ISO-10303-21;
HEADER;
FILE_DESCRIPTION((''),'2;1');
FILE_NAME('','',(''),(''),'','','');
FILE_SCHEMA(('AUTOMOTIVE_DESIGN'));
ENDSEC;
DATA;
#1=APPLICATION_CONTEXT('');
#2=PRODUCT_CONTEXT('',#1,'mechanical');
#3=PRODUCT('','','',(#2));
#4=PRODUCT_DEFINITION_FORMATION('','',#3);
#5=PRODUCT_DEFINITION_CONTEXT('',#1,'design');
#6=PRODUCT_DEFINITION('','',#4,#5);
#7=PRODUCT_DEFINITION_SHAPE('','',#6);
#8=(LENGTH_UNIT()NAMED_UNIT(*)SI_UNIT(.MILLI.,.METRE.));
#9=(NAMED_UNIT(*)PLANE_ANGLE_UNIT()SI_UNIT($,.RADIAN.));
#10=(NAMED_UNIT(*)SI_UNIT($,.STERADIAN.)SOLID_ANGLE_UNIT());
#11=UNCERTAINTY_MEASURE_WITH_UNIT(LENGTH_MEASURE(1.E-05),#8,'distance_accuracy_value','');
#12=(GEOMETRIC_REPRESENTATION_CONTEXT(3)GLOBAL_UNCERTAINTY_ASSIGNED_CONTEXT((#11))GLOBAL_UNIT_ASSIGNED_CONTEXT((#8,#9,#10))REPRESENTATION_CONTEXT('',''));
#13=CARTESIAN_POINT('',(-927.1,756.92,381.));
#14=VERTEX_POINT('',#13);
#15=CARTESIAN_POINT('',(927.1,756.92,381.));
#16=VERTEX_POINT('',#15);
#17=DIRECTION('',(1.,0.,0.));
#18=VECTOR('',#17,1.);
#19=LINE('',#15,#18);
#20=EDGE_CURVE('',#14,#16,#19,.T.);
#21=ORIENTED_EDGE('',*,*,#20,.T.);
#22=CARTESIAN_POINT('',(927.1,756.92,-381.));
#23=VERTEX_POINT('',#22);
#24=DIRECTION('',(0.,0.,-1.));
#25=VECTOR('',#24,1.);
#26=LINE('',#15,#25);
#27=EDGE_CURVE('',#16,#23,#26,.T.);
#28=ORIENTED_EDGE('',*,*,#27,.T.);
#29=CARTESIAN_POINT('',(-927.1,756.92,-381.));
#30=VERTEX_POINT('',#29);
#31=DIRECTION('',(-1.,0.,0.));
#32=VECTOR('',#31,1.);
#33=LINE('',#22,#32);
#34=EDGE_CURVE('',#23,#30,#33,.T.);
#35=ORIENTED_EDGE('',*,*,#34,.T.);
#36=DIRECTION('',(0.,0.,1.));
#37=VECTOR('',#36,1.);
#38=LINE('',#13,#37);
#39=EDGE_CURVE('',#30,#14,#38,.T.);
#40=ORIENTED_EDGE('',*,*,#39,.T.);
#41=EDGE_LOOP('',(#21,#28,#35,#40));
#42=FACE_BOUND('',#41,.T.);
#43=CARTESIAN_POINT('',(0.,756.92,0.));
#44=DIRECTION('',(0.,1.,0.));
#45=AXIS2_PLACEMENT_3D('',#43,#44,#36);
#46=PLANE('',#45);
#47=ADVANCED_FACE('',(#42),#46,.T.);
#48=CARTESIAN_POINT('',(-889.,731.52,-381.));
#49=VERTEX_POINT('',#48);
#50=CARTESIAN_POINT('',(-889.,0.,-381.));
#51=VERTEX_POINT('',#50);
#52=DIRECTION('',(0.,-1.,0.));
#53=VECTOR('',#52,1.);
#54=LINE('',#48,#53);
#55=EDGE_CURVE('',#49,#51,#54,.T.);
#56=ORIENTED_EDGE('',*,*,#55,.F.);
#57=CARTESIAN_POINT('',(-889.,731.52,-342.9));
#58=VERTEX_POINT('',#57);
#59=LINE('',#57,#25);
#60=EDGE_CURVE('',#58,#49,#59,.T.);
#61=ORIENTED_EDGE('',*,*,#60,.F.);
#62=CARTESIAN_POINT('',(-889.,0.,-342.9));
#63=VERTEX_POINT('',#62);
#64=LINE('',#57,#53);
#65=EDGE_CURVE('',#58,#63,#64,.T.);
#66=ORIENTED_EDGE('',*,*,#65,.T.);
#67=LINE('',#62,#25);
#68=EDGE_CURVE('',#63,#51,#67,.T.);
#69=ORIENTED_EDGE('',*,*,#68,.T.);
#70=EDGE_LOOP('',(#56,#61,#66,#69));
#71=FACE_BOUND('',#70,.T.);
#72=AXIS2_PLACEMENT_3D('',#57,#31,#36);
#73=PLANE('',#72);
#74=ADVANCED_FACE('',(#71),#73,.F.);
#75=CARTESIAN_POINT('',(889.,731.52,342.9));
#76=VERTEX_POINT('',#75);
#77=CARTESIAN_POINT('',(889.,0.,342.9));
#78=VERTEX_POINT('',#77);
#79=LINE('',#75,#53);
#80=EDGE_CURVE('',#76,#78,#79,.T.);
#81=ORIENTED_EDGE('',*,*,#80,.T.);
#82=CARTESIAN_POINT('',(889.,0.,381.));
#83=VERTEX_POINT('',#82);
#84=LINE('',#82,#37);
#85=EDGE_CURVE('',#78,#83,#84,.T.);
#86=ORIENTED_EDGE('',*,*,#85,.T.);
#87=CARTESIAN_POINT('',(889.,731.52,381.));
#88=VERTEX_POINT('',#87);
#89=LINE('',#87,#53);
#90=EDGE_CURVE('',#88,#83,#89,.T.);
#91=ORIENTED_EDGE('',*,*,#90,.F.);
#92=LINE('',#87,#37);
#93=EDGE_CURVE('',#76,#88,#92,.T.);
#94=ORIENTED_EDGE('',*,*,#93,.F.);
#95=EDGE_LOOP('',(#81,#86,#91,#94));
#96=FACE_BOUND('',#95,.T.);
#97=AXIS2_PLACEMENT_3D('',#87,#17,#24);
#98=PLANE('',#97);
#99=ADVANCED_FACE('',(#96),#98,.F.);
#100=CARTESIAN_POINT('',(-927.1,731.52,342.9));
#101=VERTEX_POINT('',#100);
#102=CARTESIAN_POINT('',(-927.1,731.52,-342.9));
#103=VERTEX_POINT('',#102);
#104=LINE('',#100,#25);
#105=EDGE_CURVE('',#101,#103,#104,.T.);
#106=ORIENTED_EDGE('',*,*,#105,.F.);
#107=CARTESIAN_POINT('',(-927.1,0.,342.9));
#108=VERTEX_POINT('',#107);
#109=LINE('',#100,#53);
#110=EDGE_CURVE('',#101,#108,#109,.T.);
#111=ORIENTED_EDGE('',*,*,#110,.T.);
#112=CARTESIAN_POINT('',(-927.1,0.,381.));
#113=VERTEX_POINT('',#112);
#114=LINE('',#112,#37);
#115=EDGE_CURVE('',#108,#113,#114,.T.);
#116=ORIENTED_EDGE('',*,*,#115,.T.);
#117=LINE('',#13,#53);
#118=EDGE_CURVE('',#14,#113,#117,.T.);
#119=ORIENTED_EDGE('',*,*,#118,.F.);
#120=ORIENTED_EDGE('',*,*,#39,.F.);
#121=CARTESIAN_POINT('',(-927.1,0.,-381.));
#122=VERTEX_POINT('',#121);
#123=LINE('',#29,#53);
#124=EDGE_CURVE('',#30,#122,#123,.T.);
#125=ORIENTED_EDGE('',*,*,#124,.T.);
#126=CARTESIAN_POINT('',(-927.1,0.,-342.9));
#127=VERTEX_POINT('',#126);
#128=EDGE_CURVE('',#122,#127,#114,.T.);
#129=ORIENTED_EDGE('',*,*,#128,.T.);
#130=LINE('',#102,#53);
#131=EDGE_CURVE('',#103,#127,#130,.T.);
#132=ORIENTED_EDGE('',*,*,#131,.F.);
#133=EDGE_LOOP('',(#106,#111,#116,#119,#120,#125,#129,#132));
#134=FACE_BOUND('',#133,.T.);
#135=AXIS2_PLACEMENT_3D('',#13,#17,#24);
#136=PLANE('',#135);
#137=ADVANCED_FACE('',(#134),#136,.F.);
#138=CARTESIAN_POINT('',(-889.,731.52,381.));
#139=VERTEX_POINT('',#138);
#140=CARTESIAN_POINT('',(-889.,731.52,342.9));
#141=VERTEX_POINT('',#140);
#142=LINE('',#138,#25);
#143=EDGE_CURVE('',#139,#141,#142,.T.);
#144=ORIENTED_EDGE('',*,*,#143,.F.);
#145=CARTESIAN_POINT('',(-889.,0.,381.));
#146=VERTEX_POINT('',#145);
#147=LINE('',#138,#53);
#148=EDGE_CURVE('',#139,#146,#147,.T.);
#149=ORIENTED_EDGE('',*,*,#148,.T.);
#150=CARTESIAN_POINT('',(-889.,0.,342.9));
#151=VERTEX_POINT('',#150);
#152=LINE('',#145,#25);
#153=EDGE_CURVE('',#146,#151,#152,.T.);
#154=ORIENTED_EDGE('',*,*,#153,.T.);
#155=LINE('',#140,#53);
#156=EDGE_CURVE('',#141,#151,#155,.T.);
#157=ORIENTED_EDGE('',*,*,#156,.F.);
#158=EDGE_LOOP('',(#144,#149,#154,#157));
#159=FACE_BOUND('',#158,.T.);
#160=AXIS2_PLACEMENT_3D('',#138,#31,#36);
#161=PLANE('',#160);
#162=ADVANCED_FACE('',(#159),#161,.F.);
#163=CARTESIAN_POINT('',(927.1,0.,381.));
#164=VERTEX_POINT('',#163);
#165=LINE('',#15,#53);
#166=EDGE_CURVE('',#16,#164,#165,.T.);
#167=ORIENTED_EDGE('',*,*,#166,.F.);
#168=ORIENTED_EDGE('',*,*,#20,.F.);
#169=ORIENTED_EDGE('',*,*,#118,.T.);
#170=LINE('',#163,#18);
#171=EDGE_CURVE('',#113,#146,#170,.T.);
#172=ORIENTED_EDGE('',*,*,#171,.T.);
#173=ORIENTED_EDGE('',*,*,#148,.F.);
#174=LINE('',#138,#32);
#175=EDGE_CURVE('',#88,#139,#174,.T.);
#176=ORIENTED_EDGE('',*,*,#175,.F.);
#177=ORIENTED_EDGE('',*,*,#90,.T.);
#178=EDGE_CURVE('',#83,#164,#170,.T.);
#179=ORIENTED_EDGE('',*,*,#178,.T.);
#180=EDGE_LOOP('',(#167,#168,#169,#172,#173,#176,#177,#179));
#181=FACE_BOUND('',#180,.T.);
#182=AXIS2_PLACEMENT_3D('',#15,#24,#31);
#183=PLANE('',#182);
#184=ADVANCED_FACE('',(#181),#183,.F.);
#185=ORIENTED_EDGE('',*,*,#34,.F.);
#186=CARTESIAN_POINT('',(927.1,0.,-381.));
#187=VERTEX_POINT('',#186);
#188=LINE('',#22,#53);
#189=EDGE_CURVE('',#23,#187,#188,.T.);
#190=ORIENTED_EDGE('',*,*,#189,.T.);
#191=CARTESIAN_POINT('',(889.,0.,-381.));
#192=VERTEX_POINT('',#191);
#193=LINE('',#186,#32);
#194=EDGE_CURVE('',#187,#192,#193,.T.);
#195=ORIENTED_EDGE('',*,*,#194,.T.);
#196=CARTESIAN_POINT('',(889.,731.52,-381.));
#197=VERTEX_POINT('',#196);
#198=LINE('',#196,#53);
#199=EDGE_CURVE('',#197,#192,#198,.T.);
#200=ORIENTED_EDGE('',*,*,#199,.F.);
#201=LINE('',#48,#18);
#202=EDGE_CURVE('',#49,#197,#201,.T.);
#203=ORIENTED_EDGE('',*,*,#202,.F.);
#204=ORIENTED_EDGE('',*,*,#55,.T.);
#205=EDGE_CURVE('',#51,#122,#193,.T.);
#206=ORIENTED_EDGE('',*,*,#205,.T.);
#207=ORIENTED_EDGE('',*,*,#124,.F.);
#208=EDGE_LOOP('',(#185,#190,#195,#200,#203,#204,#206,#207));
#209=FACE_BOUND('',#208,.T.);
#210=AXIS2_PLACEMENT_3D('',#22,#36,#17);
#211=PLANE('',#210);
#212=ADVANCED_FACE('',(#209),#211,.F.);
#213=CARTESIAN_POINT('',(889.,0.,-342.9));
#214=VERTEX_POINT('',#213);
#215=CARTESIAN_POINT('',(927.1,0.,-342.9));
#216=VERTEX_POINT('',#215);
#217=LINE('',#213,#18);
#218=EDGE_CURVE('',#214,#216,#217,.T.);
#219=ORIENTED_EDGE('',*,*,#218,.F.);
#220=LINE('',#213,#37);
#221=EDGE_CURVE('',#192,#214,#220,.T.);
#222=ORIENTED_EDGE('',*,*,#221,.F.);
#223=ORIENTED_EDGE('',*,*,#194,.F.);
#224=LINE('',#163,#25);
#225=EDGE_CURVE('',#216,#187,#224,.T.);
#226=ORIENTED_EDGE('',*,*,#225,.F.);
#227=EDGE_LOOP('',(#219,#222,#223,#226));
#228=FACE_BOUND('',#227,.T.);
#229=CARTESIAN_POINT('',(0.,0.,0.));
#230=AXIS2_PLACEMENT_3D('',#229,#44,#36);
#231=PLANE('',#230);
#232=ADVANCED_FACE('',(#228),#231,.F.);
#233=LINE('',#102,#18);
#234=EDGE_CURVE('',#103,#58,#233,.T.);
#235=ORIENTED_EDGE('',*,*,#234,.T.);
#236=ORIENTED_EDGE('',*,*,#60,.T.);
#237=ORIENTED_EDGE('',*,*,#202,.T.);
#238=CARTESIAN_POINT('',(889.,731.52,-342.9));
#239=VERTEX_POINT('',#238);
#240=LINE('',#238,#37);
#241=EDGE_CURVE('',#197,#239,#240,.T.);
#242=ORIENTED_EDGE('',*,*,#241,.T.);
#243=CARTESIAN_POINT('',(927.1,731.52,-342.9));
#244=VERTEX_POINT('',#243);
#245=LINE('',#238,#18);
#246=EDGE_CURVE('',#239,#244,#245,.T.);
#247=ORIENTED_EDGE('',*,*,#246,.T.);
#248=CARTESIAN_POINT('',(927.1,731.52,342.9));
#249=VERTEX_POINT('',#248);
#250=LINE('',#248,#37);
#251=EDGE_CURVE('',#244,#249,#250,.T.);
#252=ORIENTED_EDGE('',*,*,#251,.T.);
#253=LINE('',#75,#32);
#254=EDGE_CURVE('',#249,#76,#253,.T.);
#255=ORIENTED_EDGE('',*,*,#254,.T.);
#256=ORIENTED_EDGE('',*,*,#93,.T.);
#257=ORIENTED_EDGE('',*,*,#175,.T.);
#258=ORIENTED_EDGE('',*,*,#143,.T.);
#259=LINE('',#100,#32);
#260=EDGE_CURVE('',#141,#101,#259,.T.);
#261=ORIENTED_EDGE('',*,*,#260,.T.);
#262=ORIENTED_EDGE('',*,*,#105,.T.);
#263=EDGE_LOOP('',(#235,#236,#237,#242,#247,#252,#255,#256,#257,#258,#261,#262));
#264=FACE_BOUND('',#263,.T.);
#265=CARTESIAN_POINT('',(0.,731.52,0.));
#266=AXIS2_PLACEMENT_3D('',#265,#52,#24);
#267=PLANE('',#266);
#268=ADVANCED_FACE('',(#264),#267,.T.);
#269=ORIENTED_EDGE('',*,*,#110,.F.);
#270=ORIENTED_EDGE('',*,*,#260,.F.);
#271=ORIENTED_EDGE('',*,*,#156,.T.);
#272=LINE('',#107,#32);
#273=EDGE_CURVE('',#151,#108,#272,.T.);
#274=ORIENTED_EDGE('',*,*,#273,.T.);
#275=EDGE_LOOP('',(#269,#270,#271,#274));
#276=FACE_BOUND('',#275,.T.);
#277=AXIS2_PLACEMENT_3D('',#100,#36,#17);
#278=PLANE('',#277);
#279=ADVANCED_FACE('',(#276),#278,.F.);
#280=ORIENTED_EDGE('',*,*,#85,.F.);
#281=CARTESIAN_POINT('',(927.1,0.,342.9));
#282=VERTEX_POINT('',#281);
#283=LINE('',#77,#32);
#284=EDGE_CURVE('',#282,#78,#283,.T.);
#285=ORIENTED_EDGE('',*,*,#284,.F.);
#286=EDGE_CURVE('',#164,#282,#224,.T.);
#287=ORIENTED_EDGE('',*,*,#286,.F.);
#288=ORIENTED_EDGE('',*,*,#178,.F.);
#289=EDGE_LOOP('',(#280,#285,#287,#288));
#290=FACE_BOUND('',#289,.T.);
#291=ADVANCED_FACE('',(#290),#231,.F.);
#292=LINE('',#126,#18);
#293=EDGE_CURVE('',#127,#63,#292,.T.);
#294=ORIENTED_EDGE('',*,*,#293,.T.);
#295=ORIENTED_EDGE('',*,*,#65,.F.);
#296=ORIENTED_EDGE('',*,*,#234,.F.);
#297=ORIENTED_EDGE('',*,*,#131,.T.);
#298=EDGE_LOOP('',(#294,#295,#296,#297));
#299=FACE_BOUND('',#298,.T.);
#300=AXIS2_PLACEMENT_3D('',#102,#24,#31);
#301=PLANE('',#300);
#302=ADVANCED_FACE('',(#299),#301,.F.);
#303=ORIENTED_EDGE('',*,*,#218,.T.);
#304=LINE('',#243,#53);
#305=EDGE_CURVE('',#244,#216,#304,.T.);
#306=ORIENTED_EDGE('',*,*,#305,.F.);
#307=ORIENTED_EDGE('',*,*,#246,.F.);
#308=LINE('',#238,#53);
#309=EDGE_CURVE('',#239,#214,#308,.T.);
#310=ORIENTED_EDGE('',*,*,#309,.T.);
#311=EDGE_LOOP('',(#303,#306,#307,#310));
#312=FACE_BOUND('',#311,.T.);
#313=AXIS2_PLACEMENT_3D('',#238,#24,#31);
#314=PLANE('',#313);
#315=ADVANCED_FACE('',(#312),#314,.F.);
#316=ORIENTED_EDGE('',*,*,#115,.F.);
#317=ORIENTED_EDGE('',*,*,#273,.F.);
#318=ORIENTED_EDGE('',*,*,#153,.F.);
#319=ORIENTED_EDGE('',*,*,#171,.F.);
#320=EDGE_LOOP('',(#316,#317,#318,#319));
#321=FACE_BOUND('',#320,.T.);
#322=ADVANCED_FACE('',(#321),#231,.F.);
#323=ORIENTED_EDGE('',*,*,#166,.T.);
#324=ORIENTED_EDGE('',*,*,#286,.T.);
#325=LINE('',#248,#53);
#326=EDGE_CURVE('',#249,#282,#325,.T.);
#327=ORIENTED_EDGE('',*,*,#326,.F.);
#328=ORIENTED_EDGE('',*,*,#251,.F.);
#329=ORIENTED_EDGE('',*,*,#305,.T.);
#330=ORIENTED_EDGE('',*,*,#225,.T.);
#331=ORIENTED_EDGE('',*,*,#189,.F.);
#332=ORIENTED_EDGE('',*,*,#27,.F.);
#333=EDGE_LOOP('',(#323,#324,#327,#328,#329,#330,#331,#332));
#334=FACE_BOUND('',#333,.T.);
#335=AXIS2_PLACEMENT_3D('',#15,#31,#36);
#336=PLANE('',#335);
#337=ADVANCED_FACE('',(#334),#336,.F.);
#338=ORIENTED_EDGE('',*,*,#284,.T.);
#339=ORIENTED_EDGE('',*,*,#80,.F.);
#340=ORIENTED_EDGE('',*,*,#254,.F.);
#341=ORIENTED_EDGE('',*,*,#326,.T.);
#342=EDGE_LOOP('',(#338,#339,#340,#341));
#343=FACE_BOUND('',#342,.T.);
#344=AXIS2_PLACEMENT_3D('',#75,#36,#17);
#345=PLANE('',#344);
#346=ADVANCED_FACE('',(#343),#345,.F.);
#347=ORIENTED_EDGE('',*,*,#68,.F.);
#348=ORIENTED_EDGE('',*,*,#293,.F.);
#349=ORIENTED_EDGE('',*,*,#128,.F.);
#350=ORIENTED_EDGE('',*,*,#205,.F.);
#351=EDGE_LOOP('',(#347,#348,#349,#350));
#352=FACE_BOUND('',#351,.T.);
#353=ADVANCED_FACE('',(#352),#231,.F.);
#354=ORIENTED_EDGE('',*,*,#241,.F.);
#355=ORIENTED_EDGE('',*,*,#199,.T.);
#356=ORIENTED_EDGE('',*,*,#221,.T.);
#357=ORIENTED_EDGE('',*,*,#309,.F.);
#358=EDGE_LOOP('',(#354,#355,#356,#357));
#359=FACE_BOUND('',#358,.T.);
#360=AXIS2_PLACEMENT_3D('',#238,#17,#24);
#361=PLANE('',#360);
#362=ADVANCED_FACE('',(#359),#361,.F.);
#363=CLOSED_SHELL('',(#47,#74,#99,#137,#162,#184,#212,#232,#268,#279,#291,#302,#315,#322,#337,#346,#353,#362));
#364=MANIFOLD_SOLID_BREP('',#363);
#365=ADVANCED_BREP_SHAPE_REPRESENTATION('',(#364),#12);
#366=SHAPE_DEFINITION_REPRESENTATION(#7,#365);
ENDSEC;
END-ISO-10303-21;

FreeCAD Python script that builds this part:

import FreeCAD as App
import Part
import Sketcher
from FreeCAD import Vector
Q = App.Units.Quantity

doc = App.newDocument("Part")
body = doc.addObject("PartDesign::Body", "Body")

sketch1 = body.newObject("Sketcher::SketchObject", "Sketch")
sketch1.AttachmentSupport = (doc.getObject("XZ_Plane"), [""])
sketch1.MapMode = "FlatFace"
sketch1.addGeometry(Part.LineSegment(Vector(-927, -381, 0), Vector(-927, 381, 0)), False)
sketch1.addGeometry(Part.LineSegment(Vector(-927, 381, 0), Vector(927, 381, 0)), False)
sketch1.addGeometry(Part.LineSegment(Vector(927, 381, 0), Vector(927, -381, 0)), False)
sketch1.addGeometry(Part.LineSegment(Vector(927, -381, 0), Vector(-927, -381, 0)), False)
sketch1.addConstraint(Sketcher.Constraint("Coincident", 0, 2, 1, 1))
sketch1.addConstraint(Sketcher.Constraint("Coincident", 1, 2, 2, 1))
sketch1.addConstraint(Sketcher.Constraint("Coincident", 2, 2, 3, 1))
sketch1.addConstraint(Sketcher.Constraint("Coincident", 3, 2, 0, 1))
sketch1.addConstraint(Sketcher.Constraint("Vertical", 0))
sketch1.addConstraint(Sketcher.Constraint("Horizontal", 1))
sketch1.addConstraint(Sketcher.Constraint("Vertical", 2))
sketch1.addConstraint(Sketcher.Constraint("Horizontal", 3))
sketch1.addConstraint(Sketcher.Constraint("Symmetric", 0, 2, 2, 2, -1, 1))
sketch1.addConstraint(Sketcher.Constraint("DistanceX", 1, 1, 1, 2, Q("73 in")))
sketch1.addConstraint(Sketcher.Constraint("DistanceY", 0, 1, 0, 2, Q("30 in")))
pad1 = body.newObject("PartDesign::Pad", "Pad")
pad1.Profile = sketch1
pad1.Length = Q("29.8 in")
pad1.Reversed = True

sketch2 = body.newObject("Sketcher::SketchObject", "Sketch001")
sketch2.AttachmentSupport = (doc.getObject("XZ_Plane"), [""])
sketch2.MapMode = "FlatFace"
sketch2.addGeometry(Part.LineSegment(Vector(889, 381, 0), Vector(-889, 381, 0)), False)
sketch2.addGeometry(Part.LineSegment(Vector(-889, 381, 0), Vector(-889, 343, 0)), False)
sketch2.addGeometry(Part.LineSegment(Vector(-889, 343, 0), Vector(-927, 343, 0)), False)
sketch2.addGeometry(Part.LineSegment(Vector(-927, 343, 0), Vector(-927, -343, 0)), False)
sketch2.addGeometry(Part.LineSegment(Vector(-927, -343, 0), Vector(-889, -343, 0)), False)
sketch2.addGeometry(Part.LineSegment(Vector(-889, -343, 0), Vector(-889, -381, 0)), False)
sketch2.addGeometry(Part.LineSegment(Vector(-889, -381, 0), Vector(889, -381, 0)), False)
sketch2.addGeometry(Part.LineSegment(Vector(889, -381, 0), Vector(889, -343, 0)), False)
sketch2.addGeometry(Part.LineSegment(Vector(889, -343, 0), Vector(927, -343, 0)), False)
sketch2.addGeometry(Part.LineSegment(Vector(927, -343, 0), Vector(927, 343, 0)), False)
sketch2.addGeometry(Part.LineSegment(Vector(927, 343, 0), Vector(889, 343, 0)), False)
sketch2.addGeometry(Part.LineSegment(Vector(889, 343, 0), Vector(889, 381, 0)), False)
sketch2.addConstraint(Sketcher.Constraint("Coincident", 0, 2, 1, 1))
sketch2.addConstraint(Sketcher.Constraint("Coincident", 1, 2, 2, 1))
sketch2.addConstraint(Sketcher.Constraint("Coincident", 2, 2, 3, 1))
sketch2.addConstraint(Sketcher.Constraint("Coincident", 3, 2, 4, 1))
sketch2.addConstraint(Sketcher.Constraint("Coincident", 4, 2, 5, 1))
sketch2.addConstraint(Sketcher.Constraint("Coincident", 5, 2, 6, 1))
sketch2.addConstraint(Sketcher.Constraint("Coincident", 6, 2, 7, 1))
sketch2.addConstraint(Sketcher.Constraint("Coincident", 7, 2, 8, 1))
sketch2.addConstraint(Sketcher.Constraint("Coincident", 8, 2, 9, 1))
sketch2.addConstraint(Sketcher.Constraint("Coincident", 9, 2, 10, 1))
sketch2.addConstraint(Sketcher.Constraint("Coincident", 10, 2, 11, 1))
sketch2.addConstraint(Sketcher.Constraint("Coincident", 11, 2, 0, 1))
sketch2.addConstraint(Sketcher.Constraint("Horizontal", 0))
sketch2.addConstraint(Sketcher.Constraint("Vertical", 1))
sketch2.addConstraint(Sketcher.Constraint("Horizontal", 2))
sketch2.addConstraint(Sketcher.Constraint("Vertical", 3))
sketch2.addConstraint(Sketcher.Constraint("Horizontal", 4))
sketch2.addConstraint(Sketcher.Constraint("Vertical", 5))
sketch2.addConstraint(Sketcher.Constraint("Horizontal", 6))
sketch2.addConstraint(Sketcher.Constraint("Vertical", 7))
sketch2.addConstraint(Sketcher.Constraint("Horizontal", 8))
sketch2.addConstraint(Sketcher.Constraint("Vertical", 9))
sketch2.addConstraint(Sketcher.Constraint("Horizontal", 10))
sketch2.addConstraint(Sketcher.Constraint("Vertical", 11))
sketch2.addConstraint(Sketcher.Constraint("Symmetric", 0, 2, 6, 2, -1, 1))
sketch2.addConstraint(Sketcher.Constraint("Symmetric", 2, 2, 8, 2, -1, 1))
sketch2.addConstraint(Sketcher.Constraint("Symmetric", 4, 2, 10, 2, -1, 1))
sketch2.addConstraint(Sketcher.Constraint("Symmetric", 4, 2, 7, 2, -2))
sketch2.addConstraint(Sketcher.Constraint("Equal", 10, 1))
sketch2.addConstraint(Sketcher.Constraint("DistanceX", 0, 2, 0, 1, Q("70 in")))
sketch2.addConstraint(Sketcher.Constraint("DistanceY", 3, 2, 3, 1, Q("27 in")))
sketch2.addConstraint(Sketcher.Constraint("DistanceX", 2, 2, 2, 1, Q("1.5 in")))
pocket1 = body.newObject("PartDesign::Pocket", "Pocket")
pocket1.Profile = sketch2
pocket1.Length = Q("28.8 in")

doc.recompute()
